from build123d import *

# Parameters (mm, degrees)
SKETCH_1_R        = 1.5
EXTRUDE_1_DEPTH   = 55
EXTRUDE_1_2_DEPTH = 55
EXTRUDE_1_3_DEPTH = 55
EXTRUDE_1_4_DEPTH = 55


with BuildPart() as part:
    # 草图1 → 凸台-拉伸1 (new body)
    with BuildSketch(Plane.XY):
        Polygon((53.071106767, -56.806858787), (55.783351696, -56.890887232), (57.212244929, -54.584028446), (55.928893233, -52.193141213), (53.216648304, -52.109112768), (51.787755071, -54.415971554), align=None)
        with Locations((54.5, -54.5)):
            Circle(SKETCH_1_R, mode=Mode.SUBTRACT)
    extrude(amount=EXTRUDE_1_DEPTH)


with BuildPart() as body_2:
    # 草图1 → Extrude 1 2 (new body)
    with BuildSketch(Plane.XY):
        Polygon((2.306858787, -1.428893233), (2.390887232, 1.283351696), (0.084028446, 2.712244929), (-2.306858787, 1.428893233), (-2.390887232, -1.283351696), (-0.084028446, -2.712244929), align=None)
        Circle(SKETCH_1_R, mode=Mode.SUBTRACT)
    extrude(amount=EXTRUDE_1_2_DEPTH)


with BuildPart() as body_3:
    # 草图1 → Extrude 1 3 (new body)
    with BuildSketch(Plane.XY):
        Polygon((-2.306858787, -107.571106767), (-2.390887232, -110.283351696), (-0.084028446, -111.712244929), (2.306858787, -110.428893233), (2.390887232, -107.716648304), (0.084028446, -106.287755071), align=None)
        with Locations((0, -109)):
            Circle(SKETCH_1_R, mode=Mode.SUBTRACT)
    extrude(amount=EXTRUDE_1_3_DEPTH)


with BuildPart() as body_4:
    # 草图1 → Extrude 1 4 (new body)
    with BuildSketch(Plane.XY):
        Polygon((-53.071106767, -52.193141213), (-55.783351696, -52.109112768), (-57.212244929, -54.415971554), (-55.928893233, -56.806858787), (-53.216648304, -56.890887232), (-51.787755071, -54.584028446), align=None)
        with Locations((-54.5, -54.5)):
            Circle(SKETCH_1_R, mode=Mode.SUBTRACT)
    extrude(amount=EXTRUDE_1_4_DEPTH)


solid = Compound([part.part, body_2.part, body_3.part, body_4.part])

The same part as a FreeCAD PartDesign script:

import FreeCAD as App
import Part
import Sketcher

V = App.Vector

doc = App.newDocument("Part")
body = doc.addObject("PartDesign::Body", "Body")

# Sketch on XY plane
sketch1 = body.newObject("Sketcher::SketchObject", "Sketch")
sketch1.AttachmentSupport = (doc.getObject("XY_Plane"), [""])
sketch1.MapMode = "FlatFace"
sketch1.addGeometry([
    Part.LineSegment(V(53.1, -56.8, 0), V(55.8, -56.9, 0)),  # 0
    Part.LineSegment(V(55.8, -56.9, 0), V(57.2, -54.6, 0)),  # 1
    Part.LineSegment(V(57.2, -54.6, 0), V(55.9, -52.2, 0)),  # 2
    Part.LineSegment(V(55.9, -52.2, 0), V(53.2, -52.1, 0)),  # 3
    Part.LineSegment(V(53.2, -52.1, 0), V(51.8, -54.4, 0)),  # 4
    Part.LineSegment(V(51.8, -54.4, 0), V(53.1, -56.8, 0)),  # 5
    Part.Circle(V(54.5, -54.5, 0), V(0, 0, 1), 1.5),  # 6
], False)
sketch1.addConstraint([
    Sketcher.Constraint("Coincident", 0, 2, 1, 1),
    Sketcher.Constraint("Coincident", 1, 2, 2, 1),
    Sketcher.Constraint("Coincident", 2, 2, 3, 1),
    Sketcher.Constraint("Coincident", 3, 2, 4, 1),
    Sketcher.Constraint("Coincident", 4, 2, 5, 1),
    Sketcher.Constraint("Coincident", 5, 2, 0, 1),
    Sketcher.Constraint("Parallel", 0, 3),
    Sketcher.Constraint("Parallel", 1, 4),
    Sketcher.Constraint("Parallel", 2, 5),
    Sketcher.Constraint("Equal", 0, 1),
    Sketcher.Constraint("Equal", 1, 2),
    Sketcher.Constraint("Equal", 2, 3),
    Sketcher.Constraint("Diameter", 6, 3.0),
    Sketcher.Constraint("DistanceX", -1, 1, 6, 3, 54.5),
    Sketcher.Constraint("DistanceY", 6, 3, -1, 1, 54.5),
    Sketcher.Constraint("DistanceX", -1, 1, 0, 2, 55.783352),
    Sketcher.Constraint("DistanceY", 1, 2, -1, 1, 54.584028),
    Sketcher.Constraint("DistanceY", 2, 2, -1, 1, 52.193141),
    Sketcher.Constraint("DistanceX", -1, 1, 3, 2, 53.216648),
    Sketcher.Constraint("DistanceY", 4, 2, -1, 1, 54.415972),
    Sketcher.Constraint("DistanceY", 0, 2, 1, 2, 2.306859),
])
pad1 = body.newObject("PartDesign::Pad", "Pad")
pad1.Profile = sketch1
pad1.Length = 55
body2 = doc.addObject("PartDesign::Body", "Body001")

# Sketch on XY plane
sketch2 = body2.newObject("Sketcher::SketchObject", "Sketch001")
sketch2.AttachmentSupport = (doc.getObject("XY_Plane001"), [""])
sketch2.MapMode = "FlatFace"
sketch2.addGeometry([
    Part.LineSegment(V(2.3, -1.4, 0), V(2.4, 1.3, 0)),  # 0
    Part.LineSegment(V(2.4, 1.3, 0), V(0.1, 2.7, 0)),  # 1
    Part.LineSegment(V(0.1, 2.7, 0), V(-2.3, 1.4, 0)),  # 2
    Part.LineSegment(V(-2.3, 1.4, 0), V(-2.4, -1.3, 0)),  # 3
    Part.LineSegment(V(-2.4, -1.3, 0), V(-0.1, -2.7, 0)),  # 4
    Part.LineSegment(V(-0.1, -2.7, 0), V(2.3, -1.4, 0)),  # 5
    Part.Circle(V(0, 0, 0), V(0, 0, 1), 1.5),  # 6
], False)
sketch2.addConstraint([
    Sketcher.Constraint("Coincident", 0, 2, 1, 1),
    Sketcher.Constraint("Coincident", 1, 2, 2, 1),
    Sketcher.Constraint("Coincident", 2, 2, 3, 1),
    Sketcher.Constraint("Coincident", 3, 2, 4, 1),
    Sketcher.Constraint("Coincident", 4, 2, 5, 1),
    Sketcher.Constraint("Coincident", 5, 2, 0, 1),
    Sketcher.Constraint("Coincident", 6, 3, -1, 1),
    Sketcher.Constraint("Symmetric", 0, 2, 3, 2, -1, 1),
    Sketcher.Constraint("Symmetric", 1, 2, 4, 2, -1, 1),
    Sketcher.Constraint("Symmetric", 2, 2, 5, 2, -1, 1),
    Sketcher.Constraint("Equal", 0, 1),
    Sketcher.Constraint("Equal", 1, 2),
    Sketcher.Constraint("Diameter", 6, 3.0),
    Sketcher.Constraint("DistanceY", -1, 1, 0, 2, 1.283352),
    Sketcher.Constraint("DistanceX", -1, 1, 1, 2, 0.084028),
    Sketcher.Constraint("DistanceX", 2, 2, -1, 1, 2.306859),
    Sketcher.Constraint("DistanceX", 1, 2, 0, 2, 2.306859),
])
pad2 = body2.newObject("PartDesign::Pad", "Pad001")
pad2.Profile = sketch2
pad2.Length = 55
body3 = doc.addObject("PartDesign::Body", "Body002")

# Sketch on XY plane
sketch3 = body3.newObject("Sketcher::SketchObject", "Sketch002")
sketch3.AttachmentSupport = (doc.getObject("XY_Plane002"), [""])
sketch3.MapMode = "FlatFace"
sketch3.addGeometry([
    Part.LineSegment(V(-2.3, -107.6, 0), V(-2.4, -110.3, 0)),  # 0
    Part.LineSegment(V(-2.4, -110.3, 0), V(-0.1, -111.7, 0)),  # 1
    Part.LineSegment(V(-0.1, -111.7, 0), V(2.3, -110.4, 0)),  # 2
    Part.LineSegment(V(2.3, -110.4, 0), V(2.4, -107.7, 0)),  # 3
    Part.LineSegment(V(2.4, -107.7, 0), V(0.1, -106.3, 0)),  # 4
    Part.LineSegment(V(0.1, -106.3, 0), V(-2.3, -107.6, 0)),  # 5
    Part.Circle(V(0, -109, 0), V(0, 0, 1), 1.5),  # 6
], False)
sketch3.addConstraint([
    Sketcher.Constraint("Coincident", 0, 2, 1, 1),
    Sketcher.Constraint("Coincident", 1, 2, 2, 1),
    Sketcher.Constraint("Coincident", 2, 2, 3, 1),
    Sketcher.Constraint("Coincident", 3, 2, 4, 1),
    Sketcher.Constraint("Coincident", 4, 2, 5, 1),
    Sketcher.Constraint("Coincident", 5, 2, 0, 1),
    Sketcher.Constraint("PointOnObject", 6, 3, -2),
    Sketcher.Constraint("Parallel", 0, 3),
    Sketcher.Constraint("Parallel", 1, 4),
    Sketcher.Constraint("Parallel", 2, 5),
    Sketcher.Constraint("Equal", 0, 1),
    Sketcher.Constraint("Equal", 1, 2),
    Sketcher.Constraint("Equal", 2, 3),
    Sketcher.Constraint("Diameter", 6, 3.0),
    Sketcher.Constraint("DistanceY", 6, 3, -1, 1, 109.0),
    Sketcher.Constraint("DistanceY", 0, 2, -1, 1, 110.283352),
    Sketcher.Constraint("DistanceX", 1, 2, -1, 1, 0.084028),
    Sketcher.Constraint("DistanceX", -1, 1, 2, 2, 2.306859),
    Sketcher.Constraint("DistanceY", 3, 2, -1, 1, 107.716648),
    Sketcher.Constraint("DistanceX", -1, 1, 4, 2, 0.084028),
    Sketcher.Constraint("DistanceX", 0, 2, 1, 2, 2.306859),
])
pad3 = body3.newObject("PartDesign::Pad", "Pad002")
pad3.Profile = sketch3
pad3.Length = 55
body4 = doc.addObject("PartDesign::Body", "Body003")

# Sketch on XY plane
sketch4 = body4.newObject("Sketcher::SketchObject", "Sketch003")
sketch4.AttachmentSupport = (doc.getObject("XY_Plane003"), [""])
sketch4.MapMode = "FlatFace"
sketch4.addGeometry([
    Part.LineSegment(V(-53.1, -52.2, 0), V(-55.8, -52.1, 0)),  # 0
    Part.LineSegment(V(-55.8, -52.1, 0), V(-57.2, -54.4, 0)),  # 1
    Part.LineSegment(V(-57.2, -54.4, 0), V(-55.9, -56.8, 0)),  # 2
    Part.LineSegment(V(-55.9, -56.8, 0), V(-53.2, -56.9, 0)),  # 3
    Part.LineSegment(V(-53.2, -56.9, 0), V(-51.8, -54.6, 0)),  # 4
    Part.LineSegment(V(-51.8, -54.6, 0), V(-53.1, -52.2, 0)),  # 5
    Part.Circle(V(-54.5, -54.5, 0), V(0, 0, 1), 1.5),  # 6
], False)
sketch4.addConstraint([
    Sketcher.Constraint("Coincident", 0, 2, 1, 1),
    Sketcher.Constraint("Coincident", 1, 2, 2, 1),
    Sketcher.Constraint("Coincident", 2, 2, 3, 1),
    Sketcher.Constraint("Coincident", 3, 2, 4, 1),
    Sketcher.Constraint("Coincident", 4, 2, 5, 1),
    Sketcher.Constraint("Coincident", 5, 2, 0, 1),
    Sketcher.Constraint("Parallel", 0, 3),
    Sketcher.Constraint("Parallel", 1, 4),
    Sketcher.Constraint("Parallel", 2, 5),
    Sketcher.Constraint("Equal", 0, 1),
    Sketcher.Constraint("Equal", 1, 2),
    Sketcher.Constraint("Equal", 2, 3),
    Sketcher.Constraint("Diameter", 6, 3.0),
    Sketcher.Constraint("DistanceX", 6, 3, -1, 1, 54.5),
    Sketcher.Constraint("DistanceY", 6, 3, -1, 1, 54.5),
    Sketcher.Constraint("DistanceX", 0, 2, -1, 1, 55.783352),
    Sketcher.Constraint("DistanceY", 1, 2, -1, 1, 54.415972),
    Sketcher.Constraint("DistanceY", 2, 2, -1, 1, 56.806859),
    Sketcher.Constraint("DistanceX", 3, 2, -1, 1, 53.216648),
    Sketcher.Constraint("DistanceY", 4, 2, -1, 1, 54.584028),
    Sketcher.Constraint("DistanceY", 1, 2, 0, 2, 2.306859),
])
pad4 = body4.newObject("PartDesign::Pad", "Pad003")
pad4.Profile = sketch4
pad4.Length = 55

doc.recompute()
